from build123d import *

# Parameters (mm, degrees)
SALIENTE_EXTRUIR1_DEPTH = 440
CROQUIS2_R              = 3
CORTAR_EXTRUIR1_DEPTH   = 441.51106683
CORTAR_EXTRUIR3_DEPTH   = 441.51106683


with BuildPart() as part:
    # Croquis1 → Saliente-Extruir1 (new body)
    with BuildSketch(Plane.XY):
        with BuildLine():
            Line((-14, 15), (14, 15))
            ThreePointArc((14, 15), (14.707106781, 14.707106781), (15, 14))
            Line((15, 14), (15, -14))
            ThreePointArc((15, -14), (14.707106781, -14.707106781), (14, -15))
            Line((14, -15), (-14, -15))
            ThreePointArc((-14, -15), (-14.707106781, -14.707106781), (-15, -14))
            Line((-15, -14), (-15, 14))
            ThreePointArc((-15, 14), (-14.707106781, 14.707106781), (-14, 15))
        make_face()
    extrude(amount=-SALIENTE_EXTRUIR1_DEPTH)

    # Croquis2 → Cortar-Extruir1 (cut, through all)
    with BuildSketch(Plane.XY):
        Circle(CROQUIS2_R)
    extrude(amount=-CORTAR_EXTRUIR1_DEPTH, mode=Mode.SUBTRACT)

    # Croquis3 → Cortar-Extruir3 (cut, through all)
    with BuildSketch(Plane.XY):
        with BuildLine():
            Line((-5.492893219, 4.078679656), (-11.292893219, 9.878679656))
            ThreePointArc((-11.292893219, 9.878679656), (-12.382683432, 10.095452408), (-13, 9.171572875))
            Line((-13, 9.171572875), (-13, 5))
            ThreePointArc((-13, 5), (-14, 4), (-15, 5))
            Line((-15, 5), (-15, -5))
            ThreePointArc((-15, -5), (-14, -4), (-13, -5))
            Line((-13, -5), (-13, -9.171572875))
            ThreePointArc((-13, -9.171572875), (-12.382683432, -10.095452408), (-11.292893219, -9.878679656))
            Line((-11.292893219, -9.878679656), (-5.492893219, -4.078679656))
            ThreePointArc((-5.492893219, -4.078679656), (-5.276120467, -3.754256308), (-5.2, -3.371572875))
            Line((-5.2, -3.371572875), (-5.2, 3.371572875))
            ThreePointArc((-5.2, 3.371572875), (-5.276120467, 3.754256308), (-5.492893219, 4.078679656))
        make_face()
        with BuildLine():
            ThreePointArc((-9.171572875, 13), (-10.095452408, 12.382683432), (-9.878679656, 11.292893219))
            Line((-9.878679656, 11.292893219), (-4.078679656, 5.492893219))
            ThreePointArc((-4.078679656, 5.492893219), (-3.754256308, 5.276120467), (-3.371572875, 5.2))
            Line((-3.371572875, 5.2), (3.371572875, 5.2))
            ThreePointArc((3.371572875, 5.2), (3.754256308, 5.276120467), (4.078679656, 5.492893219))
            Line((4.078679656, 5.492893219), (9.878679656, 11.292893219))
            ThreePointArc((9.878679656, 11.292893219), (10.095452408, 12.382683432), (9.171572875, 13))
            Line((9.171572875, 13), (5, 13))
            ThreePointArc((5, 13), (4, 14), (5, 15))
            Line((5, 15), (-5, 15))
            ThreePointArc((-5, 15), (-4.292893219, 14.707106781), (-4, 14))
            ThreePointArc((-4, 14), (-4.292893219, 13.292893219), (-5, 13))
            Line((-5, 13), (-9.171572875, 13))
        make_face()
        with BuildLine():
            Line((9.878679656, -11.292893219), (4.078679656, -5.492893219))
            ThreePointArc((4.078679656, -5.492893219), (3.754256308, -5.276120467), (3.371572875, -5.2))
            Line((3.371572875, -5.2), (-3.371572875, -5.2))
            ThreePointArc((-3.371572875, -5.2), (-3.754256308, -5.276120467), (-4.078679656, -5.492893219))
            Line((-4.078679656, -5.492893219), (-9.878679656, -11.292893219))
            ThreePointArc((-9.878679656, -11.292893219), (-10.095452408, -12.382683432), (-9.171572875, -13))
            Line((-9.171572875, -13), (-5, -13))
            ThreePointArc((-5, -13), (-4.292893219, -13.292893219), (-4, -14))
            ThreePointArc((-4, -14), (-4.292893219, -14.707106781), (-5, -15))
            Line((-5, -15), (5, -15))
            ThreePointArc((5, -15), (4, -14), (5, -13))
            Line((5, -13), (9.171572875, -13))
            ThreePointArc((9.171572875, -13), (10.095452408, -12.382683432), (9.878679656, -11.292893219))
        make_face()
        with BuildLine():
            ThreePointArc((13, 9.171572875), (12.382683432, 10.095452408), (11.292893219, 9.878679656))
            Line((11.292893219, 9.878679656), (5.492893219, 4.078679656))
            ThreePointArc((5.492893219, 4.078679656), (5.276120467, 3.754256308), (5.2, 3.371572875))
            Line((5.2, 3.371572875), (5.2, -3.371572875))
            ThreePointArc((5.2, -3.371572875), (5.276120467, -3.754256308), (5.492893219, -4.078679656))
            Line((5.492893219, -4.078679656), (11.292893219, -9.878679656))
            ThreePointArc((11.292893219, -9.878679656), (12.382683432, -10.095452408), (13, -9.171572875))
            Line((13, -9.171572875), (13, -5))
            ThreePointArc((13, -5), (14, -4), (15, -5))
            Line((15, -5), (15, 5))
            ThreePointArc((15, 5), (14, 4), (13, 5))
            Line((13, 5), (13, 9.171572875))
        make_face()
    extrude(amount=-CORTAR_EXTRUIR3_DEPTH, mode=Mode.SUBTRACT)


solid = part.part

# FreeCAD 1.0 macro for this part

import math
import FreeCAD as App
import Part
import Sketcher
from FreeCAD import Vector

doc = App.newDocument("Part")
params = doc.addObject("Spreadsheet::Sheet", "Params")
for row, (alias, value) in enumerate([
    ("sketch1_radius", "1 mm"),
    ("sketch1_width", "28 mm"),
    ("pad1_length", "440 mm"),
    ("sketch2_diameter", "6 mm"),
    ("sketch3_radius", "1 mm"),
    ("sketch3_width", "10 mm"),
], start=1):
    params.set(f"A{row}", alias)
    params.set(f"B{row}", "=" + value)
    params.setAlias(f"B{row}", alias)

body = doc.addObject("PartDesign::Body", "Body")

# Sketch on XY plane
sketch1 = body.newObject("Sketcher::SketchObject", "Sketch")
sketch1.AttachmentSupport = (doc.getObject("XY_Plane"), [""])
sketch1.MapMode = "FlatFace"
sketch1.addGeometry(Part.LineSegment(Vector(14, 15, 0), Vector(-14, 15, 0)), False)
sketch1.addGeometry(Part.ArcOfCircle(Part.Circle(Vector(-14, 14, 0), Vector(0, 0, 1), 1), math.radians(90), math.radians(180)), False)
sketch1.addGeometry(Part.LineSegment(Vector(-15, 14, 0), Vector(-15, -14, 0)), False)
sketch1.addGeometry(Part.ArcOfCircle(Part.Circle(Vector(-14, -14, 0), Vector(0, 0, 1), 1), math.radians(-180), math.radians(-90)), False)
sketch1.addGeometry(Part.LineSegment(Vector(-14, -15, 0), Vector(14, -15, 0)), False)
sketch1.addGeometry(Part.ArcOfCircle(Part.Circle(Vector(14, -14, 0), Vector(0, 0, 1), 1), math.radians(-90), math.radians(0)), False)
sketch1.addGeometry(Part.LineSegment(Vector(15, -14, 0), Vector(15, 14, 0)), False)
sketch1.addGeometry(Part.ArcOfCircle(Part.Circle(Vector(14, 14, 0), Vector(0, 0, 1), 1), math.radians(0), math.radians(90)), False)
sketch1.addConstraint(Sketcher.Constraint("Tangent", 0, 2, 1, 1))
sketch1.addConstraint(Sketcher.Constraint("Tangent", 1, 2, 2, 1))
sketch1.addConstraint(Sketcher.Constraint("Tangent", 2, 2, 3, 1))
sketch1.addConstraint(Sketcher.Constraint("Tangent", 3, 2, 4, 1))
sketch1.addConstraint(Sketcher.Constraint("Tangent", 4, 2, 5, 1))
sketch1.addConstraint(Sketcher.Constraint("Tangent", 5, 2, 6, 1))
sketch1.addConstraint(Sketcher.Constraint("Tangent", 6, 2, 7, 1))
sketch1.addConstraint(Sketcher.Constraint("Tangent", 7, 2, 0, 1))
sketch1.addConstraint(Sketcher.Constraint("Horizontal", 0))
sketch1.addConstraint(Sketcher.Constraint("Vertical", 2))
sketch1.addConstraint(Sketcher.Constraint("Horizontal", 4))
sketch1.addConstraint(Sketcher.Constraint("Vertical", 6))
sketch1.addConstraint(Sketcher.Constraint("Equal", 1, 3))
sketch1.addConstraint(Sketcher.Constraint("Equal", 3, 5))
sketch1.addConstraint(Sketcher.Constraint("Equal", 5, 7))
sketch1.addConstraint(Sketcher.Constraint("Symmetric", 1, 3, 5, 3, -1, 1))
sketch1.addConstraint(Sketcher.Constraint("Equal", 4, 2))
sketch1.addConstraint(Sketcher.Constraint("Radius", 1, 1.0))
sketch1.addConstraint(Sketcher.Constraint("DistanceX", 0, 2, 0, 1, 28.0))
sketch1.setExpression("Constraints[17]", "Params.sketch1_radius")
sketch1.setExpression("Constraints[18]", "Params.sketch1_width")
pad1 = body.newObject("PartDesign::Pad", "Pad")
pad1.Profile = sketch1
pad1.setExpression("Length", "Params.pad1_length")
pad1.Reversed = True

# Sketch on XY plane
sketch2 = body.newObject("Sketcher::SketchObject", "Sketch001")
sketch2.AttachmentSupport = (doc.getObject("XY_Plane"), [""])
sketch2.MapMode = "FlatFace"
sketch2.addGeometry(Part.Circle(Vector(0, 0, 0), Vector(0, 0, 1), 3), False)
sketch2.addConstraint(Sketcher.Constraint("Coincident", 0, 3, -1, 1))
sketch2.addConstraint(Sketcher.Constraint("Diameter", 0, 6.0))
sketch2.setExpression("Constraints[1]", "Params.sketch2_diameter")
pocket1 = body.newObject("PartDesign::Pocket", "Pocket")
pocket1.Profile = sketch2
pocket1.Type = "ThroughAll"

# Sketch on XY plane
sketch3 = body.newObject("Sketcher::SketchObject", "Sketch002")
sketch3.AttachmentSupport = (doc.getObject("XY_Plane"), [""])
sketch3.MapMode = "FlatFace"
sketch3.addGeometry(Part.LineSegment(Vector(-5.5, 4.1, 0), Vector(-11.3, 9.9, 0)), False)
sketch3.addGeometry(Part.ArcOfCircle(Part.Circle(Vector(-12, 9.2, 0), Vector(0, 0, 1), 1), math.radians(45), math.radians(180)), False)
sketch3.addGeometry(Part.LineSegment(Vector(-13, 9.2, 0), Vector(-13, 5, 0)), False)
sketch3.addGeometry(Part.ArcOfCircle(Part.Circle(Vector(-14, 5, 0), Vector(0, 0, 1), 1), math.radians(180), math.radians(360)), False)
sketch3.addGeometry(Part.LineSegment(Vector(-15, 5, 0), Vector(-15, -5, 0)), False)
sketch3.addGeometry(Part.ArcOfCircle(Part.Circle(Vector(-14, -5, 0), Vector(0, 0, 1), 1), math.radians(0), math.radians(180)), False)
sketch3.addGeometry(Part.LineSegment(Vector(-13, -5, 0), Vector(-13, -9.2, 0)), False)
sketch3.addGeometry(Part.ArcOfCircle(Part.Circle(Vector(-12, -9.2, 0), Vector(0, 0, 1), 1), math.radians(180), math.radians(315)), False)
sketch3.addGeometry(Part.LineSegment(Vector(-11.3, -9.9, 0), Vector(-5.5, -4.1, 0)), False)
sketch3.addGeometry(Part.ArcOfCircle(Part.Circle(Vector(-6.2, -3.4, 0), Vector(0, 0, 1), 1), math.radians(-45), math.radians(0)), False)
sketch3.addGeometry(Part.LineSegment(Vector(-5.2, -3.4, 0), Vector(-5.2, 3.4, 0)), False)
sketch3.addGeometry(Part.ArcOfCircle(Part.Circle(Vector(-6.2, 3.4, 0), Vector(0, 0, 1), 1), math.radians(0), math.radians(45)), False)
sketch3.addGeometry(Part.ArcOfCircle(Part.Circle(Vector(-9.2, 12, 0), Vector(0, 0, 1), 1), math.radians(90), math.radians(225)), False)
sketch3.addGeometry(Part.LineSegment(Vector(-9.9, 11.3, 0), Vector(-4.1, 5.5, 0)), False)
sketch3.addGeometry(Part.ArcOfCircle(Part.Circle(Vector(-3.4, 6.2, 0), Vector(0, 0, 1), 1), math.radians(-135), math.radians(-90)), False)
sketch3.addGeometry(Part.LineSegment(Vector(-3.4, 5.2, 0), Vector(3.4, 5.2, 0)), False)
sketch3.addGeometry(Part.ArcOfCircle(Part.Circle(Vector(3.4, 6.2, 0), Vector(0, 0, 1), 1), math.radians(-90), math.radians(-45)), False)
sketch3.addGeometry(Part.LineSegment(Vector(4.1, 5.5, 0), Vector(9.9, 11.3, 0)), False)
sketch3.addGeometry(Part.ArcOfCircle(Part.Circle(Vector(9.2, 12, 0), Vector(0, 0, 1), 1), math.radians(-45), math.radians(90)), False)
sketch3.addGeometry(Part.LineSegment(Vector(9.2, 13, 0), Vector(5, 13, 0)), False)
sketch3.addGeometry(Part.ArcOfCircle(Part.Circle(Vector(5, 14, 0), Vector(0, 0, 1), 1), math.radians(90), math.radians(270)), False)
sketch3.addGeometry(Part.LineSegment(Vector(5, 15, 0), Vector(-5, 15, 0)), False)
sketch3.addGeometry(Part.ArcOfCircle(Part.Circle(Vector(-5, 14, 0), Vector(0, 0, 1), 1), math.radians(0), math.radians(90)), False)
sketch3.addGeometry(Part.ArcOfCircle(Part.Circle(Vector(-5, 14, 0), Vector(0, 0, 1), 1), math.radians(-90), math.radians(0)), False)
sketch3.addGeometry(Part.LineSegment(Vector(-5, 13, 0), Vector(-9.2, 13, 0)), False)
sketch3.addGeometry(Part.LineSegment(Vector(9.9, -11.3, 0), Vector(4.1, -5.5, 0)), False)
sketch3.addGeometry(Part.ArcOfCircle(Part.Circle(Vector(3.4, -6.2, 0), Vector(0, 0, 1), 1), math.radians(45), math.radians(90)), False)
sketch3.addGeometry(Part.LineSegment(Vector(3.4, -5.2, 0), Vector(-3.4, -5.2, 0)), False)
sketch3.addGeometry(Part.ArcOfCircle(Part.Circle(Vector(-3.4, -6.2, 0), Vector(0, 0, 1), 1), math.radians(90), math.radians(135)), False)
sketch3.addGeometry(Part.LineSegment(Vector(-4.1, -5.5, 0), Vector(-9.9, -11.3, 0)), False)
sketch3.addGeometry(Part.ArcOfCircle(Part.Circle(Vector(-9.2, -12, 0), Vector(0, 0, 1), 1), math.radians(135), math.radians(270)), False)
sketch3.addGeometry(Part.LineSegment(Vector(-9.2, -13, 0), Vector(-5, -13, 0)), False)
sketch3.addGeometry(Part.ArcOfCircle(Part.Circle(Vector(-5, -14, 0), Vector(0, 0, 1), 1), math.radians(0), math.radians(90)), False)
sketch3.addGeometry(Part.ArcOfCircle(Part.Circle(Vector(-5, -14, 0), Vector(0, 0, 1), 1), math.radians(-90), math.radians(0)), False)
sketch3.addGeometry(Part.LineSegment(Vector(-5, -15, 0), Vector(5, -15, 0)), False)
sketch3.addGeometry(Part.ArcOfCircle(Part.Circle(Vector(5, -14, 0), Vector(0, 0, 1), 1), math.radians(90), math.radians(270)), False)
sketch3.addGeometry(Part.LineSegment(Vector(5, -13, 0), Vector(9.2, -13, 0)), False)
sketch3.addGeometry(Part.ArcOfCircle(Part.Circle(Vector(9.2, -12, 0), Vector(0, 0, 1), 1), math.radians(-90), math.radians(45)), False)
sketch3.addGeometry(Part.ArcOfCircle(Part.Circle(Vector(12, 9.2, 0), Vector(0, 0, 1), 1), math.radians(0), math.radians(135)), False)
sketch3.addGeometry(Part.LineSegment(Vector(11.3, 9.9, 0), Vector(5.5, 4.1, 0)), False)
sketch3.addGeometry(Part.ArcOfCircle(Part.Circle(Vector(6.2, 3.4, 0), Vector(0, 0, 1), 1), math.radians(135), math.radians(180)), False)
sketch3.addGeometry(Part.LineSegment(Vector(5.2, 3.4, 0), Vector(5.2, -3.4, 0)), False)
sketch3.addGeometry(Part.ArcOfCircle(Part.Circle(Vector(6.2, -3.4, 0), Vector(0, 0, 1), 1), math.radians(180), math.radians(225)), False)
sketch3.addGeometry(Part.LineSegment(Vector(5.5, -4.1, 0), Vector(11.3, -9.9, 0)), False)
sketch3.addGeometry(Part.ArcOfCircle(Part.Circle(Vector(12, -9.2, 0), Vector(0, 0, 1), 1), math.radians(-135), math.radians(0)), False)
sketch3.addGeometry(Part.LineSegment(Vector(13, -9.2, 0), Vector(13, -5, 0)), False)
sketch3.addGeometry(Part.ArcOfCircle(Part.Circle(Vector(14, -5, 0), Vector(0, 0, 1), 1), math.radians(0), math.radians(180)), False)
sketch3.addGeometry(Part.LineSegment(Vector(15, -5, 0), Vector(15, 5, 0)), False)
sketch3.addGeometry(Part.ArcOfCircle(Part.Circle(Vector(14, 5, 0), Vector(0, 0, 1), 1), math.radians(180), math.radians(360)), False)
sketch3.addGeometry(Part.LineSegment(Vector(13, 5, 0), Vector(13, 9.2, 0)), False)
sketch3.addConstraint(Sketcher.Constraint("Tangent", 0, 2, 1, 1))
sketch3.addConstraint(Sketcher.Constraint("Tangent", 1, 2, 2, 1))
sketch3.addConstraint(Sketcher.Constraint("Tangent", 2, 2, 3, 2))
sketch3.addConstraint(Sketcher.Constraint("Tangent", 3, 1, 4, 1))
sketch3.addConstraint(Sketcher.Constraint("Tangent", 4, 2, 5, 2))
sketch3.addConstraint(Sketcher.Constraint("Tangent", 5, 1, 6, 1))
sketch3.addConstraint(Sketcher.Constraint("Tangent", 6, 2, 7, 1))
sketch3.addConstraint(Sketcher.Constraint("Tangent", 7, 2, 8, 1))
sketch3.addConstraint(Sketcher.Constraint("Tangent", 8, 2, 9, 1))
sketch3.addConstraint(Sketcher.Constraint("Tangent", 9, 2, 10, 1))
sketch3.addConstraint(Sketcher.Constraint("Tangent", 10, 2, 11, 1))
sketch3.addConstraint(Sketcher.Constraint("Tangent", 11, 2, 0, 1))
sketch3.addConstraint(Sketcher.Constraint("Tangent", 12, 2, 13, 1))
sketch3.addConstraint(Sketcher.Constraint("Tangent", 13, 2, 14, 1))
sketch3.addConstraint(Sketcher.Constraint("Tangent", 14, 2, 15, 1))
sketch3.addConstraint(Sketcher.Constraint("Tangent", 15, 2, 16, 1))
sketch3.addConstraint(Sketcher.Constraint("Tangent", 16, 2, 17, 1))
sketch3.addConstraint(Sketcher.Constraint("Tangent", 17, 2, 18, 1))
sketch3.addConstraint(Sketcher.Constraint("Tangent", 18, 2, 19, 1))
sketch3.addConstraint(Sketcher.Constraint("Tangent", 19, 2, 20, 2))
sketch3.addConstraint(Sketcher.Constraint("Tangent", 20, 1, 21, 1))
sketch3.addConstraint(Sketcher.Constraint("Tangent", 21, 2, 22, 2))
sketch3.addConstraint(Sketcher.Constraint("Tangent", 22, 1, 23, 2))
sketch3.addConstraint(Sketcher.Constraint("Tangent", 23, 1, 24, 1))
sketch3.addConstraint(Sketcher.Constraint("Tangent", 24, 2, 12, 1))
sketch3.addConstraint(Sketcher.Constraint("Tangent", 25, 2, 26, 1))
sketch3.addConstraint(Sketcher.Constraint("Tangent", 26, 2, 27, 1))
sketch3.addConstraint(Sketcher.Constraint("Tangent", 27, 2, 28, 1))
sketch3.addConstraint(Sketcher.Constraint("Tangent", 28, 2, 29, 1))
sketch3.addConstraint(Sketcher.Constraint("Tangent", 29, 2, 30, 1))
sketch3.addConstraint(Sketcher.Constraint("Tangent", 30, 2, 31, 1))
sketch3.addConstraint(Sketcher.Constraint("Tangent", 31, 2, 32, 2))
sketch3.addConstraint(Sketcher.Constraint("Tangent", 32, 1, 33, 2))
sketch3.addConstraint(Sketcher.Constraint("Tangent", 33, 1, 34, 1))
sketch3.addConstraint(Sketcher.Constraint("Tangent", 34, 2, 35, 2))
sketch3.addConstraint(Sketcher.Constraint("Tangent", 35, 1, 36, 1))
sketch3.addConstraint(Sketcher.Constraint("Tangent", 36, 2, 37, 1))
sketch3.addConstraint(Sketcher.Constraint("Tangent", 37, 2, 25, 1))
sketch3.addConstraint(Sketcher.Constraint("Tangent", 38, 2, 39, 1))
sketch3.addConstraint(Sketcher.Constraint("Tangent", 39, 2, 40, 1))
sketch3.addConstraint(Sketcher.Constraint("Tangent", 40, 2, 41, 1))
sketch3.addConstraint(Sketcher.Constraint("Tangent", 41, 2, 42, 1))
sketch3.addConstraint(Sketcher.Constraint("Tangent", 42, 2, 43, 1))
sketch3.addConstraint(Sketcher.Constraint("Tangent", 43, 2, 44, 1))
sketch3.addConstraint(Sketcher.Constraint("Tangent", 44, 2, 45, 1))
sketch3.addConstraint(Sketcher.Constraint("Tangent", 45, 2, 46, 2))
sketch3.addConstraint(Sketcher.Constraint("Tangent", 46, 1, 47, 1))
sketch3.addConstraint(Sketcher.Constraint("Tangent", 47, 2, 48, 2))
sketch3.addConstraint(Sketcher.Constraint("Tangent", 48, 1, 49, 1))
sketch3.addConstraint(Sketcher.Constraint("Tangent", 49, 2, 38, 1))
sketch3.addConstraint(Sketcher.Constraint("Vertical", 2))
sketch3.addConstraint(Sketcher.Constraint("Vertical", 4))
sketch3.addConstraint(Sketcher.Constraint("Vertical", 6))
sketch3.addConstraint(Sketcher.Constraint("Vertical", 10))
sketch3.addConstraint(Sketcher.Constraint("Horizontal", 15))
sketch3.addConstraint(Sketcher.Constraint("Horizontal", 19))
sketch3.addConstraint(Sketcher.Constraint("Horizontal", 21))
sketch3.addConstraint(Sketcher.Constraint("Horizontal", 24))
sketch3.addConstraint(Sketcher.Constraint("Horizontal", 27))
sketch3.addConstraint(Sketcher.Constraint("Horizontal", 31))
sketch3.addConstraint(Sketcher.Constraint("Horizontal", 34))
sketch3.addConstraint(Sketcher.Constraint("Horizontal", 36))
sketch3.addConstraint(Sketcher.Constraint("Vertical", 41))
sketch3.addConstraint(Sketcher.Constraint("Vertical", 45))
sketch3.addConstraint(Sketcher.Constraint("Vertical", 47))
sketch3.addConstraint(Sketcher.Constraint("Vertical", 49))
sketch3.addConstraint(Sketcher.Constraint("Equal", 1, 3))
sketch3.addConstraint(Sketcher.Constraint("Equal", 3, 5))
sketch3.addConstraint(Sketcher.Constraint("Equal", 5, 7))
sketch3.addConstraint(Sketcher.Constraint("Equal", 7, 9))
sketch3.addConstraint(Sketcher.Constraint("Equal", 9, 11))
sketch3.addConstraint(Sketcher.Constraint("Equal", 11, 12))
sketch3.addConstraint(Sketcher.Constraint("Equal", 12, 14))
sketch3.addConstraint(Sketcher.Constraint("Equal", 14, 16))
sketch3.addConstraint(Sketcher.Constraint("Equal", 16, 18))
sketch3.addConstraint(Sketcher.Constraint("Equal", 18, 20))
sketch3.addConstraint(Sketcher.Constraint("Equal", 20, 22))
sketch3.addConstraint(Sketcher.Constraint("Equal", 22, 23))
sketch3.addConstraint(Sketcher.Constraint("Equal", 23, 26))
sketch3.addConstraint(Sketcher.Constraint("Equal", 26, 28))
sketch3.addConstraint(Sketcher.Constraint("Equal", 28, 30))
sketch3.addConstraint(Sketcher.Constraint("Equal", 30, 32))
sketch3.addConstraint(Sketcher.Constraint("Equal", 32, 33))
sketch3.addConstraint(Sketcher.Constraint("Equal", 33, 35))
sketch3.addConstraint(Sketcher.Constraint("Equal", 35, 37))
sketch3.addConstraint(Sketcher.Constraint("Equal", 37, 38))
sketch3.addConstraint(Sketcher.Constraint("Equal", 38, 40))
sketch3.addConstraint(Sketcher.Constraint("Equal", 40, 42))
sketch3.addConstraint(Sketcher.Constraint("Equal", 42, 44))
sketch3.addConstraint(Sketcher.Constraint("Equal", 44, 46))
sketch3.addConstraint(Sketcher.Constraint("Equal", 46, 48))
sketch3.addConstraint(Sketcher.Constraint("Symmetric", 14, 3, 26, 3, -1, 1))
sketch3.addConstraint(Sketcher.Constraint("Symmetric", 18, 3, 30, 3, -1, 1))
sketch3.addConstraint(Sketcher.Constraint("Symmetric", 7, 3, 38, 3, -1, 1))
sketch3.addConstraint(Sketcher.Constraint("Symmetric", 9, 3, 40, 3, -1, 1))
sketch3.addConstraint(Sketcher.Constraint("Symmetric", 11, 2, 42, 2, -1, 1))
sketch3.addConstraint(Sketcher.Constraint("Symmetric", 13, 2, 16, 2, -2))
sketch3.addConstraint(Sketcher.Constraint("Symmetric", 25, 2, 28, 2, -2))
sketch3.addConstraint(Sketcher.Constraint("Symmetric", 0, 2, 38, 2, -2))
sketch3.addConstraint(Sketcher.Constraint("Symmetric", 22, 1, 32, 1, -1))
sketch3.addConstraint(Sketcher.Constraint("Perpendicular", 0, 8))
sketch3.addConstraint(Sketcher.Constraint("Perpendicular", 8, 13))
sketch3.addConstraint(Sketcher.Constraint("Horizontal", 5, 3, 46, 3))
sketch3.addConstraint(Sketcher.Constraint("Horizontal", 3, 3, 48, 3))
sketch3.addConstraint(Sketcher.Constraint("Horizontal", 23, 3, 22, 1))
sketch3.addConstraint(Sketcher.Constraint("Vertical", 20, 3, 35, 3))
sketch3.addConstraint(Sketcher.Constraint("Equal", 19, 24))
sketch3.addConstraint(Sketcher.Constraint("Equal", 36, 2))
sketch3.addConstraint(Sketcher.Constraint("Equal", 34, 4))
sketch3.addConstraint(Sketcher.Constraint("Equal", 2, 6))
sketch3.addConstraint(Sketcher.Constraint("Equal", 27, 10))
sketch3.addConstraint(Sketcher.Constraint("Radius", 1, 1.0))
sketch3.addConstraint(Sketcher.Constraint("DistanceX", 21, 2, 21, 1, 10.0))
sketch3.addConstraint(Sketcher.Constraint("DistanceX", 1, 3, -1, 1, 12.0))
sketch3.addConstraint(Sketcher.Constraint("DistanceY", -1, 1, 12, 3, 12.0))
sketch3.addConstraint(Sketcher.Constraint("DistanceX", 9, 3, -1, 1, 6.2))
sketch3.addConstraint(Sketcher.Constraint("DistanceX", 15, 1, 15, 2, 6.743146))
sketch3.setExpression("Constraints[111]", "Params.sketch3_radius")
sketch3.setExpression("Constraints[112]", "Params.sketch3_width")
pocket2 = body.newObject("PartDesign::Pocket", "Pocket001")
pocket2.Profile = sketch3
pocket2.Type = "ThroughAll"

doc.recompute()
